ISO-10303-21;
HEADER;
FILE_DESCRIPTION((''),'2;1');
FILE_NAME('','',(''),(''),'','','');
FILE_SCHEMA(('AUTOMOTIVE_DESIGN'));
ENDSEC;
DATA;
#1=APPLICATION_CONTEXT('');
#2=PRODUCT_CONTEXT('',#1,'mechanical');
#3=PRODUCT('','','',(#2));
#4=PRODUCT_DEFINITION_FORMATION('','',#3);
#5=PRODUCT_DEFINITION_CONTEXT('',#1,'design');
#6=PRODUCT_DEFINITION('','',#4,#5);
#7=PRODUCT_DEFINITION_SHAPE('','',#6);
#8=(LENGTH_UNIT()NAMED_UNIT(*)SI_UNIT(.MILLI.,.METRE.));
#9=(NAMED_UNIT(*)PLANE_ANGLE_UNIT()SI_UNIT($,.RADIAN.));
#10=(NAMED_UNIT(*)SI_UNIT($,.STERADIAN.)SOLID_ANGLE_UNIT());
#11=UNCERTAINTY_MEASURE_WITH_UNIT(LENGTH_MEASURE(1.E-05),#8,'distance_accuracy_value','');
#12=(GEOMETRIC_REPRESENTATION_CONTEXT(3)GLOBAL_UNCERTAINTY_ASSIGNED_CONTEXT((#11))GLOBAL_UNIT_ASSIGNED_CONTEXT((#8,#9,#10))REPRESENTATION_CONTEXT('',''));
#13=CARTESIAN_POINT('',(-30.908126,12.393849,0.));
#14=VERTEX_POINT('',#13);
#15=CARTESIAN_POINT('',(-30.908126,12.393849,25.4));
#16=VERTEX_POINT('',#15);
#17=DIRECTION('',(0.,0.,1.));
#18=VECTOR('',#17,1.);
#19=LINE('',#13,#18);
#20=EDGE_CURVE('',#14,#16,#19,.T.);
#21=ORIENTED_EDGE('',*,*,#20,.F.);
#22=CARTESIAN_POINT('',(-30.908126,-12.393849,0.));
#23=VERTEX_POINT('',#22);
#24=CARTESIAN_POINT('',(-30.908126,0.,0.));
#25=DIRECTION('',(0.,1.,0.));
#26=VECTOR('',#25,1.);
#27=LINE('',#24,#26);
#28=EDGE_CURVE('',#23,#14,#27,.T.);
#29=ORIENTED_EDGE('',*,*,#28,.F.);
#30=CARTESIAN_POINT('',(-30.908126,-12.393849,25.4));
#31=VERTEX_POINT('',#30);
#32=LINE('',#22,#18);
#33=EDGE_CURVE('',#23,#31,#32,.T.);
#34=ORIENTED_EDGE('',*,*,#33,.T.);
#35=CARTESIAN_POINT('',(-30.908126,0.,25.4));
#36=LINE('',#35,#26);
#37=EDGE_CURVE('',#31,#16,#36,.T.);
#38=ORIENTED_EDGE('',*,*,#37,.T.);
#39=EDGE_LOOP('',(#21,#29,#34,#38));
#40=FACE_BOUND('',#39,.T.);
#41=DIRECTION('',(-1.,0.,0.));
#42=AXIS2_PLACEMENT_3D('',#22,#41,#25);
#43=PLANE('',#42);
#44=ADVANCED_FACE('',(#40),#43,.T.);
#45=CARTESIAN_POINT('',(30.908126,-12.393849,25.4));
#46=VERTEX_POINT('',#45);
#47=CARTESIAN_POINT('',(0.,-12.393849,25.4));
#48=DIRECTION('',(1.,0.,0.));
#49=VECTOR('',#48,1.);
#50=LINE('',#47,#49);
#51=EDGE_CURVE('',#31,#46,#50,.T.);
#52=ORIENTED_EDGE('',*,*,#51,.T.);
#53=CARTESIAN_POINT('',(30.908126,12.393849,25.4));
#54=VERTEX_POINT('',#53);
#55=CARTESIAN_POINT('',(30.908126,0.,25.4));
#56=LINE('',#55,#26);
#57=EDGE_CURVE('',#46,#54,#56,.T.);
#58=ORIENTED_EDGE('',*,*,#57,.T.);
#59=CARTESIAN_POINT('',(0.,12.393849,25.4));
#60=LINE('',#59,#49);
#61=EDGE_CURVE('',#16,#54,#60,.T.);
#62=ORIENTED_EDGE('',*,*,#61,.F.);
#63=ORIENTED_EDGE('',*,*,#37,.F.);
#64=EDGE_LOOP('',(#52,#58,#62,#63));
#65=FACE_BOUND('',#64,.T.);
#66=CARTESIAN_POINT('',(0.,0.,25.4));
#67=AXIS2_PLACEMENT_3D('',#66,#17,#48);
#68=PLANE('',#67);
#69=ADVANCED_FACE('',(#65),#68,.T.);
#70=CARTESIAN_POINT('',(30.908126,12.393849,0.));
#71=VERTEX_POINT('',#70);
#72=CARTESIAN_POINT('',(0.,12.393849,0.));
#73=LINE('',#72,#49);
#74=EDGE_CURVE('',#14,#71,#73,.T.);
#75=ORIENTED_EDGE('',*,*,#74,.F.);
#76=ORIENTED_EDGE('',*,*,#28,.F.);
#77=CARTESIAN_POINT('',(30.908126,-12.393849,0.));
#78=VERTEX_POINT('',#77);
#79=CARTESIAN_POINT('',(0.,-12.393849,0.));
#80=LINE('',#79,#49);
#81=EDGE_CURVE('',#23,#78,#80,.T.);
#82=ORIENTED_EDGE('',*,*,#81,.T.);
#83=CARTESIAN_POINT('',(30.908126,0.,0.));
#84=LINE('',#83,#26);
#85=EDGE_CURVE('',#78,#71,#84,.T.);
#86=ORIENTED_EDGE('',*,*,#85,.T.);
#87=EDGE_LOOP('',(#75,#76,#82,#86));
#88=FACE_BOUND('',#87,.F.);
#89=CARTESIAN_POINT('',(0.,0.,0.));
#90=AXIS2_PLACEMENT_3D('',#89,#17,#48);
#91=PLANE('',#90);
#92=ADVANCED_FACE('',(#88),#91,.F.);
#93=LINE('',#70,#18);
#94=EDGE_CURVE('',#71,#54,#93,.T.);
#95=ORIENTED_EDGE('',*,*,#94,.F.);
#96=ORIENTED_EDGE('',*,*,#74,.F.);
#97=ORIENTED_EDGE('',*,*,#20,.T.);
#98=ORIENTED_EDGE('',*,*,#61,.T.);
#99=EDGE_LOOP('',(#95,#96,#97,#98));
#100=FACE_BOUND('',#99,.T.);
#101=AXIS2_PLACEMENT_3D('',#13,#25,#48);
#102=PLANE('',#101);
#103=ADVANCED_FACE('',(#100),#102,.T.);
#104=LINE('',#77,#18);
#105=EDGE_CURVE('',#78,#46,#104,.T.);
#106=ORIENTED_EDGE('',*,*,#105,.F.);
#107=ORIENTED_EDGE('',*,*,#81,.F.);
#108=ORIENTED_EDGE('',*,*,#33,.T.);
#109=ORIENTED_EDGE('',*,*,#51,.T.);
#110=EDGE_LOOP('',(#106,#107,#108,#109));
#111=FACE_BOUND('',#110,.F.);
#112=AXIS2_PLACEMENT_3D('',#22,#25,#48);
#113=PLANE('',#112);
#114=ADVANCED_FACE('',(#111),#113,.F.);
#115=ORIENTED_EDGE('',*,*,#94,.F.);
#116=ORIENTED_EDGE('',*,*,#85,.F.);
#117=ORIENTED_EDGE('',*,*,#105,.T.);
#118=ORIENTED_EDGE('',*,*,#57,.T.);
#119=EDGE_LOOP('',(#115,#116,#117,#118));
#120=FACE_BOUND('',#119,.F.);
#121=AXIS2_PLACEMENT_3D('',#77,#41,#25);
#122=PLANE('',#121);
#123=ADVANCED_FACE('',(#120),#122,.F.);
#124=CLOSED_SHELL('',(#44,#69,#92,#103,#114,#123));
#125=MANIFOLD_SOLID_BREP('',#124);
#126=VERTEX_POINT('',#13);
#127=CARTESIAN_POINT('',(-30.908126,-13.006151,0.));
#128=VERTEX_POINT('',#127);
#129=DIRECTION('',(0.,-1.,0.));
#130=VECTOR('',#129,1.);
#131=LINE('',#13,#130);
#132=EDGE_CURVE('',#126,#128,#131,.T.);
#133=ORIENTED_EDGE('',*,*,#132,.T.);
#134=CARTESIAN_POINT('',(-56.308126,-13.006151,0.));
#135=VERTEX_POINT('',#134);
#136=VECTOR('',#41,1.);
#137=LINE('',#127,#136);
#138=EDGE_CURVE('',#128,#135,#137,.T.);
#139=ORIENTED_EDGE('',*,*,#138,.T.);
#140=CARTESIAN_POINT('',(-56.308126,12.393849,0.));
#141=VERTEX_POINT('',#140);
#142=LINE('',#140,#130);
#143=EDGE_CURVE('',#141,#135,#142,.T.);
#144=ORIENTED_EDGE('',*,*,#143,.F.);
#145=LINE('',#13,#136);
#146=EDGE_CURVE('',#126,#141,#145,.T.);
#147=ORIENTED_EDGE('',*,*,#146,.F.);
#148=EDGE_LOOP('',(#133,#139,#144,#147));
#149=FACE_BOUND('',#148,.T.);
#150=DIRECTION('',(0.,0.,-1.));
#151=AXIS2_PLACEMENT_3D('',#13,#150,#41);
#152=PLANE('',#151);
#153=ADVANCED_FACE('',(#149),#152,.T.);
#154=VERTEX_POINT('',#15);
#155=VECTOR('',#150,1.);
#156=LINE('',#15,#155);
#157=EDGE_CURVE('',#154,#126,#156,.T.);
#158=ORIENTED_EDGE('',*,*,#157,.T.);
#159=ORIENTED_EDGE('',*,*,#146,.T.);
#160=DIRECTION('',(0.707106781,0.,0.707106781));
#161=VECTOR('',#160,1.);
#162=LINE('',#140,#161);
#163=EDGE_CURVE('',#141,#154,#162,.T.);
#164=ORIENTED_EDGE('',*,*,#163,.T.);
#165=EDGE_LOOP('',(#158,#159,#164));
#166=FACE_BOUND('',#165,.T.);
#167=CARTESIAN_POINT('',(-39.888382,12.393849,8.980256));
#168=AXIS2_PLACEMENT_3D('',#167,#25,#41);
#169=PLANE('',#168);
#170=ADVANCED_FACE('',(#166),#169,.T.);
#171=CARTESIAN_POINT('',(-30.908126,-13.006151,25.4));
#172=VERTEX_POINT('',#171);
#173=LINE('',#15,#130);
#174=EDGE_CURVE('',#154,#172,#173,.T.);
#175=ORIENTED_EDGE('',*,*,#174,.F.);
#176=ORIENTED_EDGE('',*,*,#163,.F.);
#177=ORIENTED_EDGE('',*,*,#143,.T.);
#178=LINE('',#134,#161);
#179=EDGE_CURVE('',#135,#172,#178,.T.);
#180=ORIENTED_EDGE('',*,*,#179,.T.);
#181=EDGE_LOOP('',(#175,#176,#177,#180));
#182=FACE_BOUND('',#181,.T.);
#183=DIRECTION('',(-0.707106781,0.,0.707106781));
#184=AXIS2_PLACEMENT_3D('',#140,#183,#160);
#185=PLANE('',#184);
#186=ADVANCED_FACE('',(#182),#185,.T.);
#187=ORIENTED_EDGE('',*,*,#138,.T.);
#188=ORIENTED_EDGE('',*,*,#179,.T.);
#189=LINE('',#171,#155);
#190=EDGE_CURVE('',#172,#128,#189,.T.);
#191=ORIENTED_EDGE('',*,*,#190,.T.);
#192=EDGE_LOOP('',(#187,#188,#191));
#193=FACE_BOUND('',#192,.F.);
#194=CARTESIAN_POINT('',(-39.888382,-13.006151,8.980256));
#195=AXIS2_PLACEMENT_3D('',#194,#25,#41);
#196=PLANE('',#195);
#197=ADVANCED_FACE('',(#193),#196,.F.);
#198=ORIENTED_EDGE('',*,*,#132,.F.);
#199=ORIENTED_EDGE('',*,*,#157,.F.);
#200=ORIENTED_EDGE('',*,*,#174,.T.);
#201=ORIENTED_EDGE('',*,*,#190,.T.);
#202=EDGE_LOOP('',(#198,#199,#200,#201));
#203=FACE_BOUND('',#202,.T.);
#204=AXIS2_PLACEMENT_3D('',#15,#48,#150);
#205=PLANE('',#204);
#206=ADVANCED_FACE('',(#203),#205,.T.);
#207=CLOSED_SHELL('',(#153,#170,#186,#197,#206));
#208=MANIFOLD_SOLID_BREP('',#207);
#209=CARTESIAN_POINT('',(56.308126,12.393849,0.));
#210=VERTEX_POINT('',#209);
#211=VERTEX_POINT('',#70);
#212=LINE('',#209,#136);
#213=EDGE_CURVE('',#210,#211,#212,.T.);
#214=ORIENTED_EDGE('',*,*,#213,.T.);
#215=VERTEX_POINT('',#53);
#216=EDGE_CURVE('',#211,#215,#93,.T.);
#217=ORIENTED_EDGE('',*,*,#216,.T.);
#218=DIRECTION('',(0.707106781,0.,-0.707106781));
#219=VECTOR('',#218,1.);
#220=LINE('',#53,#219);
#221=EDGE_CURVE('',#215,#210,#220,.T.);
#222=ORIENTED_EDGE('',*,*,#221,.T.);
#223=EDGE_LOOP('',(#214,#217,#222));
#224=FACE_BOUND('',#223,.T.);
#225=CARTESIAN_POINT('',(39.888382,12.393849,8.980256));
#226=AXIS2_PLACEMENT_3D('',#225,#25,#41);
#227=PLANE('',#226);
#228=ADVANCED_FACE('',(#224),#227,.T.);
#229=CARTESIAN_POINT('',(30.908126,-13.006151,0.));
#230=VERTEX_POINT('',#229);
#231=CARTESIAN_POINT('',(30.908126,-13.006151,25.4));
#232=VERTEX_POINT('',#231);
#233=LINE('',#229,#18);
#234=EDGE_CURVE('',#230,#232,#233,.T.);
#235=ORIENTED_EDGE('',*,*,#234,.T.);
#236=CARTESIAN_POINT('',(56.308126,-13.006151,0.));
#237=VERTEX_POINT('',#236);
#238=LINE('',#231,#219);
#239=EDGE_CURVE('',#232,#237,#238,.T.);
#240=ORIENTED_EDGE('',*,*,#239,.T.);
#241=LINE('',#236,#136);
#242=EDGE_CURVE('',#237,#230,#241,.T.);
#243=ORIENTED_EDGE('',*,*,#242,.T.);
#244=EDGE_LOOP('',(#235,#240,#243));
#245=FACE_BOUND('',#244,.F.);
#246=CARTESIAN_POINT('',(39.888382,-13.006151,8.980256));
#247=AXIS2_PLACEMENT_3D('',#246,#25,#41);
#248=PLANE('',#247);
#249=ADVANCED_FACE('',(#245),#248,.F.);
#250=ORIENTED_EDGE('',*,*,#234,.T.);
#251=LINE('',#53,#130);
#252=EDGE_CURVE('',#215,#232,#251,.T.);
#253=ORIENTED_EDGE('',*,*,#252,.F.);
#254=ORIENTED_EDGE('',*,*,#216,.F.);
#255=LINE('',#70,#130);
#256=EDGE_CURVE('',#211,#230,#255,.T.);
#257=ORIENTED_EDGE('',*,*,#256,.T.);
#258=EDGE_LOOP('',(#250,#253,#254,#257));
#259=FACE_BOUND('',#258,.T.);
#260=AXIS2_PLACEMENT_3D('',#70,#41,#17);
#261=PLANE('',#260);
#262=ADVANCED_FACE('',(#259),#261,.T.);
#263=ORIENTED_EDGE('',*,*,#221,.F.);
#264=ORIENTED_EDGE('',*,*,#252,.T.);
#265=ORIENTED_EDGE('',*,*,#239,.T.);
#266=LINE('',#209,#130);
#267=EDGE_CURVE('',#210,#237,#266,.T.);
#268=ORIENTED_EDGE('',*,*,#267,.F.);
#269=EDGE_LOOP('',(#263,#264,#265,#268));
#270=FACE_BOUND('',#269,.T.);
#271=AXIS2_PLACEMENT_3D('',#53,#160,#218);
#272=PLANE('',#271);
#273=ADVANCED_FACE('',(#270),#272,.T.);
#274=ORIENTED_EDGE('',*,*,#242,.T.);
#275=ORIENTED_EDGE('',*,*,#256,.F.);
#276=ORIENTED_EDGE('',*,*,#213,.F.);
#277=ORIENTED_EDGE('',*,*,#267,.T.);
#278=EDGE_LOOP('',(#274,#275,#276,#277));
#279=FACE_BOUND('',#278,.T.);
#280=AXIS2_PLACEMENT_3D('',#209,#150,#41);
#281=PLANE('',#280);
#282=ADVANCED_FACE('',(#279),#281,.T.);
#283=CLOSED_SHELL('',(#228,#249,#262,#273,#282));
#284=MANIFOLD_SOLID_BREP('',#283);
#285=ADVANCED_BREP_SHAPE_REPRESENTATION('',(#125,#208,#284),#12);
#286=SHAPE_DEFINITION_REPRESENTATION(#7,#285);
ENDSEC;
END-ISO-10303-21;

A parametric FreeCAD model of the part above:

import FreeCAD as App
import Part
import Sketcher

V = App.Vector
Q = App.Units.Quantity


def add_polygon(sketch, points):
    """Adds a closed chain of lines whose ends are joined by coincident constraints."""
    first, n = sketch.GeometryCount, len(points)
    for a, b in zip(points, points[1:] + points[:1]):
        sketch.addGeometry(Part.LineSegment(App.Vector(*a, 0), App.Vector(*b, 0)), False)
    for i in range(n):
        sketch.addConstraint(Sketcher.Constraint("Coincident", first + i, 2, first + (i + 1) % n, 1))

doc = App.newDocument("Part")
body = doc.addObject("PartDesign::Body", "Body")

# Sketch on XY plane
sketch1 = body.newObject("Sketcher::SketchObject", "Sketch")
sketch1.AttachmentSupport = (doc.getObject("XY_Plane"), [""])
sketch1.MapMode = "FlatFace"
add_polygon(sketch1, [(-30.908126, 12.393849), (-30.908126, -12.393849), (30.908126, -12.393849), (30.908126, 12.393849)])  # lines 0-3
sketch1.addConstraint([
    Sketcher.Constraint("Vertical", 0),
    Sketcher.Constraint("Horizontal", 1),
    Sketcher.Constraint("Vertical", 2),
    Sketcher.Constraint("Horizontal", 3),
    Sketcher.Constraint("Symmetric", 0, 2, 2, 2, -1, 1),
    Sketcher.Constraint("DistanceX", 1, 1, 1, 2, 61.816252),
    Sketcher.Constraint("DistanceY", 0, 2, 0, 1, 24.787698),
])
pad1 = body.newObject("PartDesign::Pad", "Pad")
pad1.Profile = sketch1
pad1.Length = Q("1 in")
body2 = doc.addObject("PartDesign::Body", "Body001")
body2.AllowCompound = True

# Sketch on XZ plane
sketch2 = body2.newObject("Sketcher::SketchObject", "Sketch001")
sketch2.AttachmentSupport = (doc.getObject("XZ_Plane001"), [""])
sketch2.MapMode = "FlatFace"
sketch2.AttachmentOffset = App.Placement(V(0, 0, -12.393849), App.Rotation())
add_polygon(sketch2, [(30.908126, 0), (30.908126, 25.4), (56.308126, 0)])  # lines 0-2
add_polygon(sketch2, [(-56.308126, 0), (-30.908126, 25.4), (-30.908126, 0)])  # lines 3-5
sketch2.addConstraint([
    Sketcher.Constraint("Vertical", 0),
    Sketcher.Constraint("Horizontal", 2),
    Sketcher.Constraint("Vertical", 4),
    Sketcher.Constraint("Horizontal", 5),
    Sketcher.Constraint("Symmetric", 2, 2, 4, 2, -1, 1),
    Sketcher.Constraint("Symmetric", 1, 2, 5, 2, -2),
    Sketcher.Constraint("Perpendicular", 1, 3),
    Sketcher.Constraint("Horizontal", 0, 2, 3, 2),
    Sketcher.Constraint("DistanceX", 2, 2, 2, 1, Q("1 in")),
    Sketcher.Constraint("DistanceX", 3, 2, 1, 2, 87.216252),
])
pad2 = body2.newObject("PartDesign::Pad", "Pad001")
pad2.Profile = sketch2
pad2.Length = Q("1 in")

doc.recompute()
